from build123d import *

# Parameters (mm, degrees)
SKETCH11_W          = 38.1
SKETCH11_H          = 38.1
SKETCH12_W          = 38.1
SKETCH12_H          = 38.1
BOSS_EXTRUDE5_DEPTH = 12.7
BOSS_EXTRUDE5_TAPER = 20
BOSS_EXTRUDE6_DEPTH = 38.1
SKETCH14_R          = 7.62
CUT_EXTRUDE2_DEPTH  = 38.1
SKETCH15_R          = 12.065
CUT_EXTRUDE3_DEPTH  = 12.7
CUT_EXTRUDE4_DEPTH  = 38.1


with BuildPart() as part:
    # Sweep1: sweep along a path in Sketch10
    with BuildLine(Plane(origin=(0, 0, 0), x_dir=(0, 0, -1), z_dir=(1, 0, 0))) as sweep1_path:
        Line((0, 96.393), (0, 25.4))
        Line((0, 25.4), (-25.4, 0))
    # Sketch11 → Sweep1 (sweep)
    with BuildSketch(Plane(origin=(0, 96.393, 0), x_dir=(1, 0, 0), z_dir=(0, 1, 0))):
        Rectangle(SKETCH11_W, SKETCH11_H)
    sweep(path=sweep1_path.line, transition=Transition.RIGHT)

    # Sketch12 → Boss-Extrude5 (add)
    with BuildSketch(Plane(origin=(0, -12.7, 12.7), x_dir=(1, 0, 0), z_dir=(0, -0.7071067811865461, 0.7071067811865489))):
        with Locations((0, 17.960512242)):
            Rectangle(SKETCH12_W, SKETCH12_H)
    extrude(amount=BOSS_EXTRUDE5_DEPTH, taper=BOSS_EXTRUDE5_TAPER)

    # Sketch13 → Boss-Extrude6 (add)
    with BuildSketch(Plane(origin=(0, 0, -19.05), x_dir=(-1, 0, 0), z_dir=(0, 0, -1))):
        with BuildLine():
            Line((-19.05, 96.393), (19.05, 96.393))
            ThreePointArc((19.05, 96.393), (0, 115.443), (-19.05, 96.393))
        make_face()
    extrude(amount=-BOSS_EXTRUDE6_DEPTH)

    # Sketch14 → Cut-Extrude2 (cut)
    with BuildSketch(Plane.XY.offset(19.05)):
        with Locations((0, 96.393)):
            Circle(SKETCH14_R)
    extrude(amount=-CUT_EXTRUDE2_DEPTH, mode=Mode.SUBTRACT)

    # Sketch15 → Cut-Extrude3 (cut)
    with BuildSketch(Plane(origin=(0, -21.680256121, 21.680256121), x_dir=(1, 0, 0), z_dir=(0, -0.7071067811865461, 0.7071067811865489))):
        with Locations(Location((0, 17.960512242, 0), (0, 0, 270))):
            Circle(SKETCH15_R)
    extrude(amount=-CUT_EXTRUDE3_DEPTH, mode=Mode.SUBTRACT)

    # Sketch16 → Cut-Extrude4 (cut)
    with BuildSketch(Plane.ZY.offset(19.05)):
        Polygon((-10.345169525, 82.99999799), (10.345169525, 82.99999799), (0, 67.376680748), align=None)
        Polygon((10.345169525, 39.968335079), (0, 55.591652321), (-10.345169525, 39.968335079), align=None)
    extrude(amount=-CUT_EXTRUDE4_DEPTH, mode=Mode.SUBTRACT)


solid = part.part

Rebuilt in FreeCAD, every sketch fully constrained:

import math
import FreeCAD as App
import Part
import Sketcher

V = App.Vector
Q = App.Units.Quantity

doc = App.newDocument("Part")
params = doc.addObject("Spreadsheet::Sheet", "Params")
for row, (alias, value) in enumerate([
    ("sketch1_width", "1.5 in"),
    ("sketch2_width", "2.795 in"),
    ("sketch3_width", "1.5 in"),
    ("pad1_length", "0.5 in"),
    ("pad1_taper", "-20 deg"),
    ("sketch4_radius", "0.75 in"),
    ("pad2_length", "1.5 in"),
    ("sketch5_diameter", "0.6 in"),
    ("pocket1_length", "1.5 in"),
    ("sketch6_diameter", "0.95 in"),
    ("pocket2_length", "0.5 in"),
    ("pocket3_length", "1.5 in"),
], start=1):
    params.set(f"A{row}", alias)
    params.set(f"B{row}", "=" + value)
    params.setAlias(f"B{row}", alias)

body = doc.addObject("PartDesign::Body", "Body")

# Sketch on XZ plane
sketch1 = doc.addObject("Sketcher::SketchObject", "Sketch")
body.addObject(sketch1)
sketch1.AttachmentSupport = (doc.XZ_Plane, [""])
sketch1.MapMode = "FlatFace"
sketch1.AttachmentOffset = App.Placement(V(0, 0, -3.795 * 25.4), App.Rotation())
sketch1.addGeometry(Part.LineSegment(V(-19.05, -19.05, 0), V(-19.05, 19.05, 0)), False)
sketch1.addGeometry(Part.LineSegment(V(-19.05, 19.05, 0), V(19.05, 19.05, 0)), False)
sketch1.addGeometry(Part.LineSegment(V(19.05, 19.05, 0), V(19.05, -19.05, 0)), False)
sketch1.addGeometry(Part.LineSegment(V(19.05, -19.05, 0), V(-19.05, -19.05, 0)), False)
sketch1.addConstraint(Sketcher.Constraint("Coincident", 0, 2, 1, 1))
sketch1.addConstraint(Sketcher.Constraint("Coincident", 1, 2, 2, 1))
sketch1.addConstraint(Sketcher.Constraint("Coincident", 2, 2, 3, 1))
sketch1.addConstraint(Sketcher.Constraint("Coincident", 3, 2, 0, 1))
sketch1.addConstraint(Sketcher.Constraint("Vertical", 0))
sketch1.addConstraint(Sketcher.Constraint("Horizontal", 1))
sketch1.addConstraint(Sketcher.Constraint("Vertical", 2))
sketch1.addConstraint(Sketcher.Constraint("Horizontal", 3))
sketch1.addConstraint(Sketcher.Constraint("Symmetric", 0, 2, 2, 2, -1, 1))
sketch1.addConstraint(Sketcher.Constraint("Equal", 3, 0))
sketch1.addConstraint(Sketcher.Constraint("DistanceX", 1, 1, 1, 2, Q("1.5 in")))
sketch1.setExpression("Constraints[10]", "Params.sketch1_width")

# Sketch on YZ plane
sketch2 = doc.addObject("Sketcher::SketchObject", "Sketch001")
body.addObject(sketch2)
sketch2.AttachmentSupport = (doc.YZ_Plane, [""])
sketch2.MapMode = "FlatFace"
sketch2.addGeometry(Part.LineSegment(V(96.393, 0, 0), V(25.4, 0, 0)), False)
sketch2.addGeometry(Part.LineSegment(V(25.4, 0, 0), V(0, 25.4, 0)), False)
sketch2.addConstraint(Sketcher.Constraint("Coincident", 0, 2, 1, 1))
sketch2.addConstraint(Sketcher.Constraint("Horizontal", 0))
sketch2.addConstraint(Sketcher.Constraint("PointOnObject", 0, 1, -1))
sketch2.addConstraint(Sketcher.Constraint("PointOnObject", 1, 2, -2))
sketch2.addConstraint(Sketcher.Constraint("DistanceX", -1, 1, 0, 2, Q("1 in")))
sketch2.addConstraint(Sketcher.Constraint("DistanceY", -1, 1, 1, 2, Q("1 in")))
sketch2.addConstraint(Sketcher.Constraint("DistanceX", 0, 2, 0, 1, Q("2.795 in")))
sketch2.setExpression("Constraints[6]", "Params.sketch2_width")
doc.recompute()

additivepipe = doc.addObject("PartDesign::AdditivePipe", "AdditivePipe")
body.addObject(additivepipe)
additivepipe.Profile = sketch1
additivepipe.Spine = (sketch2, ["Edge1", "Edge2"])
additivepipe.Transition = "Right corner"

# Sketch on an angled plane
sketch3 = doc.addObject("Sketcher::SketchObject", "Sketch002")
body.addObject(sketch3)
sketch3.Placement = App.Placement(V(0, -12.7, 12.7), App.Rotation(V(1, 0, 0), V(0, 0.707106781, 0.707106781), V(0, -0.707106781, 0.707106781), "ZXY"))
sketch3.addGeometry(Part.LineSegment(V(-19.05, 37.010512, 0), V(-19.05, -1.089488, 0)), False)
sketch3.addGeometry(Part.LineSegment(V(-19.05, -1.089488, 0), V(19.05, -1.089488, 0)), False)
sketch3.addGeometry(Part.LineSegment(V(19.05, -1.089488, 0), V(19.05, 37.010512, 0)), False)
sketch3.addGeometry(Part.LineSegment(V(19.05, 37.010512, 0), V(-19.05, 37.010512, 0)), False)
sketch3.addConstraint(Sketcher.Constraint("Coincident", 0, 2, 1, 1))
sketch3.addConstraint(Sketcher.Constraint("Coincident", 1, 2, 2, 1))
sketch3.addConstraint(Sketcher.Constraint("Coincident", 2, 2, 3, 1))
sketch3.addConstraint(Sketcher.Constraint("Coincident", 3, 2, 0, 1))
sketch3.addConstraint(Sketcher.Constraint("Vertical", 0))
sketch3.addConstraint(Sketcher.Constraint("Horizontal", 1))
sketch3.addConstraint(Sketcher.Constraint("Vertical", 2))
sketch3.addConstraint(Sketcher.Constraint("Horizontal", 3))
sketch3.addConstraint(Sketcher.Constraint("Equal", 3, 0))
sketch3.addConstraint(Sketcher.Constraint("DistanceX", 1, 1, 1, 2, Q("1.5 in")))
sketch3.addConstraint(Sketcher.Constraint("DistanceX", 0, 2, -1, 1, Q("0.75 in")))
sketch3.addConstraint(Sketcher.Constraint("DistanceY", 0, 2, -1, 1, 1.089488))
sketch3.setExpression("Constraints[9]", "Params.sketch3_width")
pad1 = doc.addObject("PartDesign::Pad", "Pad")
body.addObject(pad1)
pad1.Profile = sketch3
pad1.setExpression("Length", "Params.pad1_length")
pad1.setExpression("TaperAngle", "Params.pad1_taper")

# Sketch on XY plane
sketch4 = doc.addObject("Sketcher::SketchObject", "Sketch003")
body.addObject(sketch4)
sketch4.AttachmentSupport = (doc.XY_Plane, [""])
sketch4.MapMode = "FlatFace"
sketch4.AttachmentOffset = App.Placement(V(0, 0, -0.75 * 25.4), App.Rotation())
sketch4.addGeometry(Part.LineSegment(V(19.05, 96.393, 0), V(-19.05, 96.393, 0)), False)
sketch4.addGeometry(Part.ArcOfCircle(Part.Circle(V(0, 96.393, 0), V(0, 0, 1), 19.05), math.radians(0), math.radians(180)), False)
sketch4.addConstraint(Sketcher.Constraint("Coincident", 0, 1, 1, 1))
sketch4.addConstraint(Sketcher.Constraint("Coincident", 1, 2, 0, 2))
sketch4.addConstraint(Sketcher.Constraint("Horizontal", 0))
sketch4.addConstraint(Sketcher.Constraint("PointOnObject", 1, 3, -2))
sketch4.addConstraint(Sketcher.Constraint("Horizontal", 1, 3, 0, 1))
sketch4.addConstraint(Sketcher.Constraint("Radius", 1, Q("0.75 in")))
sketch4.addConstraint(Sketcher.Constraint("DistanceY", -1, 1, 1, 3, Q("3.795 in")))
sketch4.setExpression("Constraints[5]", "Params.sketch4_radius")
pad2 = doc.addObject("PartDesign::Pad", "Pad001")
body.addObject(pad2)
pad2.Profile = sketch4
pad2.setExpression("Length", "Params.pad2_length")

# Sketch on XY plane
sketch5 = doc.addObject("Sketcher::SketchObject", "Sketch004")
body.addObject(sketch5)
sketch5.AttachmentSupport = (doc.XY_Plane, [""])
sketch5.MapMode = "FlatFace"
sketch5.AttachmentOffset = App.Placement(V(0, 0, 0.75 * 25.4), App.Rotation())
sketch5.addGeometry(Part.Circle(V(0, 96.393, 0), V(0, 0, 1), 7.62), False)
sketch5.addConstraint(Sketcher.Constraint("PointOnObject", 0, 3, -2))
sketch5.addConstraint(Sketcher.Constraint("Diameter", 0, Q("0.6 in")))
sketch5.addConstraint(Sketcher.Constraint("DistanceY", -1, 1, 0, 3, Q("3.795 in")))
sketch5.setExpression("Constraints[1]", "Params.sketch5_diameter")
pocket1 = doc.addObject("PartDesign::Pocket", "Pocket")
body.addObject(pocket1)
pocket1.Profile = sketch5
pocket1.setExpression("Length", "Params.pocket1_length")

# Sketch on an angled plane
sketch6 = doc.addObject("Sketcher::SketchObject", "Sketch005")
body.addObject(sketch6)
sketch6.Placement = App.Placement(V(0, -21.680256, 21.680256), App.Rotation(V(1, 0, 0), V(0, 0.707106781, 0.707106781), V(0, -0.707106781, 0.707106781), "ZXY"))
sketch6.addGeometry(Part.Circle(V(0, 17.960512, 0), V(0, 0, 1), 12.065), False)
sketch6.addConstraint(Sketcher.Constraint("PointOnObject", 0, 3, -2))
sketch6.addConstraint(Sketcher.Constraint("Diameter", 0, Q("0.95 in")))
sketch6.addConstraint(Sketcher.Constraint("DistanceY", -1, 1, 0, 3, 17.960512))
sketch6.setExpression("Constraints[1]", "Params.sketch6_diameter")
pocket2 = doc.addObject("PartDesign::Pocket", "Pocket001")
body.addObject(pocket2)
pocket2.Profile = sketch6
pocket2.setExpression("Length", "Params.pocket2_length")

# Sketch on YZ plane
sketch7 = doc.addObject("Sketcher::SketchObject", "Sketch006")
body.addObject(sketch7)
sketch7.AttachmentSupport = (doc.YZ_Plane, [""])
sketch7.MapMode = "FlatFace"
sketch7.AttachmentOffset = App.Placement(V(0, 0, -0.75 * 25.4), App.Rotation())
sketch7.addGeometry(Part.LineSegment(V(82.999998, 10.34517, 0), V(82.999998, -10.34517, 0)), False)
sketch7.addGeometry(Part.LineSegment(V(82.999998, -10.34517, 0), V(67.376681, 0, 0)), False)
sketch7.addGeometry(Part.LineSegment(V(67.376681, 0, 0), V(82.999998, 10.34517, 0)), False)
sketch7.addGeometry(Part.LineSegment(V(39.968335, 10.34517, 0), V(55.591652, 0, 0)), False)
sketch7.addGeometry(Part.LineSegment(V(55.591652, 0, 0), V(39.968335, -10.34517, 0)), False)
sketch7.addGeometry(Part.LineSegment(V(39.968335, -10.34517, 0), V(39.968335, 10.34517, 0)), False)
sketch7.addConstraint(Sketcher.Constraint("Coincident", 0, 2, 1, 1))
sketch7.addConstraint(Sketcher.Constraint("Coincident", 1, 2, 2, 1))
sketch7.addConstraint(Sketcher.Constraint("Coincident", 2, 2, 0, 1))
sketch7.addConstraint(Sketcher.Constraint("Coincident", 3, 2, 4, 1))
sketch7.addConstraint(Sketcher.Constraint("Coincident", 4, 2, 5, 1))
sketch7.addConstraint(Sketcher.Constraint("Coincident", 5, 2, 3, 1))
sketch7.addConstraint(Sketcher.Constraint("Vertical", 0))
sketch7.addConstraint(Sketcher.Constraint("Vertical", 5))
sketch7.addConstraint(Sketcher.Constraint("PointOnObject", 1, 2, -1))
sketch7.addConstraint(Sketcher.Constraint("PointOnObject", 3, 2, -1))
sketch7.addConstraint(Sketcher.Constraint("Parallel", 1, 3))
sketch7.addConstraint(Sketcher.Constraint("Parallel", 2, 4))
sketch7.addConstraint(Sketcher.Constraint("Horizontal", 0, 2, 4, 2))
sketch7.addConstraint(Sketcher.Constraint("Horizontal", 2, 2, 5, 2))
sketch7.addConstraint(Sketcher.Constraint("DistanceY", 0, 2, 0, 1, 20.690339))
sketch7.addConstraint(Sketcher.Constraint("DistanceX", -1, 1, 1, 2, 67.376681))
sketch7.addConstraint(Sketcher.Constraint("DistanceX", 3, 2, 1, 2, 11.785028))
sketch7.addConstraint(Sketcher.Constraint("Distance", 1, 18.737945))
pocket3 = doc.addObject("PartDesign::Pocket", "Pocket002")
body.addObject(pocket3)
pocket3.Profile = sketch7
pocket3.setExpression("Length", "Params.pocket3_length")
pocket3.Reversed = True

doc.recompute()
